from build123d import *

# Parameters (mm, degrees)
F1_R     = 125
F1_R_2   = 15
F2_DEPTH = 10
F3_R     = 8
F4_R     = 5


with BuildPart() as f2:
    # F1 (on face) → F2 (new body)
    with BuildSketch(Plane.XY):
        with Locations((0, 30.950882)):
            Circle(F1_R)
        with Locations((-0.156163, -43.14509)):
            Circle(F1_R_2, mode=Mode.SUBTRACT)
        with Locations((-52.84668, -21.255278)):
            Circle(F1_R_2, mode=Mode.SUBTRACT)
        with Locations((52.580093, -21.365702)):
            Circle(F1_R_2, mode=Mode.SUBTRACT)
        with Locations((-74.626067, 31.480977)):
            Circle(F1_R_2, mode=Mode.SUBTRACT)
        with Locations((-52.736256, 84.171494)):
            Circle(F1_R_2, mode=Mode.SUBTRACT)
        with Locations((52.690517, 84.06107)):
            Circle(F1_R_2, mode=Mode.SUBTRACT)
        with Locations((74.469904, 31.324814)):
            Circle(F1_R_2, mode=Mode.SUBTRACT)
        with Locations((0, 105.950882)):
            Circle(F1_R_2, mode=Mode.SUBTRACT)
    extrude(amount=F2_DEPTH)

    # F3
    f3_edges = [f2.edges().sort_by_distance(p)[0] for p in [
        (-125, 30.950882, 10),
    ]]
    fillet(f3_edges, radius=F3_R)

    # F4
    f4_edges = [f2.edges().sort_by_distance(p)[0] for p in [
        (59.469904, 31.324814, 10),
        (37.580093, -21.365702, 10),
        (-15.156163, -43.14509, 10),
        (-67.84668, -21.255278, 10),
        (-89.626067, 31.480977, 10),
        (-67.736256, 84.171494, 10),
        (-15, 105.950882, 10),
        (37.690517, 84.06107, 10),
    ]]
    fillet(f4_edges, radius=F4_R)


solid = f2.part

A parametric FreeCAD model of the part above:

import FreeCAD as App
import Part
import Sketcher


def edges_at(feature, points):
    """Names of the edges that pass closest to the given points."""
    edges = feature.Shape.Edges
    near = lambda p: min(range(len(edges)), key=lambda i: edges[i].distToShape(Part.Vertex(*p))[0])
    return sorted({f"Edge{near(p) + 1}" for p in points})

doc = App.newDocument("Part")
body = doc.addObject("PartDesign::Body", "Body")

sketch1 = doc.addObject("Sketcher::SketchObject", "Sketch")
body.addObject(sketch1)
sketch1.AttachmentSupport = (doc.XY_Plane, [""])
sketch1.MapMode = "FlatFace"
sketch1.addGeometry(Part.Circle(App.Vector(0, 31, 0), App.Vector(0, 0, 1), 125), False)
sketch1.addGeometry(Part.Circle(App.Vector(-53, -21, 0), App.Vector(0, 0, 1), 15), False)
sketch1.addGeometry(Part.Circle(App.Vector(0, -43, 0), App.Vector(0, 0, 1), 15), False)
sketch1.addGeometry(Part.Circle(App.Vector(53, -21, 0), App.Vector(0, 0, 1), 15), False)
sketch1.addGeometry(Part.Circle(App.Vector(74, 31, 0), App.Vector(0, 0, 1), 15), False)
sketch1.addGeometry(Part.Circle(App.Vector(-75, 31, 0), App.Vector(0, 0, 1), 15), False)
sketch1.addGeometry(Part.Circle(App.Vector(-53, 84, 0), App.Vector(0, 0, 1), 15), False)
sketch1.addGeometry(Part.Circle(App.Vector(0, 106, 0), App.Vector(0, 0, 1), 15), False)
sketch1.addGeometry(Part.Circle(App.Vector(53, 84, 0), App.Vector(0, 0, 1), 15), False)
sketch1.addConstraint(Sketcher.Constraint("Equal", 1, 2))
sketch1.addConstraint(Sketcher.Constraint("Equal", 2, 3))
sketch1.addConstraint(Sketcher.Constraint("Equal", 3, 4))
sketch1.addConstraint(Sketcher.Constraint("Equal", 4, 5))
sketch1.addConstraint(Sketcher.Constraint("Equal", 5, 6))
sketch1.addConstraint(Sketcher.Constraint("Equal", 6, 7))
sketch1.addConstraint(Sketcher.Constraint("Equal", 7, 8))
sketch1.addConstraint(Sketcher.Constraint("PointOnObject", 0, 3, -2))
sketch1.addConstraint(Sketcher.Constraint("PointOnObject", 7, 3, -2))
sketch1.addConstraint(Sketcher.Constraint("Diameter", 0, 250.0))
sketch1.addConstraint(Sketcher.Constraint("Diameter", 1, 30.0))
sketch1.addConstraint(Sketcher.Constraint("DistanceY", 0, 3, 7, 3, 75.0))
sketch1.addConstraint(Sketcher.Constraint("DistanceY", 3, 3, -1, 1, 21.365702))
sketch1.addConstraint(Sketcher.Constraint("DistanceY", -1, 1, 0, 3, 30.950882))
sketch1.addConstraint(Sketcher.Constraint("DistanceX", 1, 3, -1, 1, 52.84668))
sketch1.addConstraint(Sketcher.Constraint("DistanceY", 1, 3, -1, 1, 21.255278))
sketch1.addConstraint(Sketcher.Constraint("DistanceY", 2, 3, -1, 1, 43.14509))
sketch1.addConstraint(Sketcher.Constraint("DistanceY", -1, 1, 8, 3, 84.06107))
sketch1.addConstraint(Sketcher.Constraint("DistanceX", 3, 3, 4, 3, 21.889811))
sketch1.addConstraint(Sketcher.Constraint("DistanceY", 0, 3, 4, 3, 0.373932))
sketch1.addConstraint(Sketcher.Constraint("DistanceX", 5, 3, 3, 3, 127.20616))
sketch1.addConstraint(Sketcher.Constraint("DistanceY", 3, 3, 5, 3, 52.846679))
sketch1.addConstraint(Sketcher.Constraint("DistanceX", 5, 3, 6, 3, 21.889811))
sketch1.addConstraint(Sketcher.Constraint("DistanceY", 0, 3, 6, 3, 53.220612))
sketch1.addConstraint(Sketcher.Constraint("DistanceX", 2, 3, -1, 1, 0.156163))
sketch1.addConstraint(Sketcher.Constraint("DistanceX", -1, 1, 3, 3, 52.580093))
sketch1.addConstraint(Sketcher.Constraint("DistanceX", -1, 1, 8, 3, 52.690517))
pad1 = doc.addObject("PartDesign::Pad", "Pad")
body.addObject(pad1)
pad1.Profile = sketch1
pad1.Length = 10
doc.recompute()

fillet = doc.addObject("PartDesign::Fillet", "Fillet")
body.addObject(fillet)
fillet.Base = (pad1, edges_at(pad1, [(-125, 30.951, 10)]))
fillet.Radius = 8
doc.recompute()

fillet2 = doc.addObject("PartDesign::Fillet", "Fillet001")
body.addObject(fillet2)
fillet2.Base = (fillet, edges_at(fillet, [
    (59.47, 31.325, 10),
    (37.58, -21.366, 10),
    (-15.156, -43.145, 10),
    (-67.847, -21.255, 10),
    (-89.626, 31.481, 10),
    (-67.736, 84.171, 10),
    (-15, 105.951, 10),
    (37.691, 84.061, 10),
]))
fillet2.Radius = 5

doc.recompute()
